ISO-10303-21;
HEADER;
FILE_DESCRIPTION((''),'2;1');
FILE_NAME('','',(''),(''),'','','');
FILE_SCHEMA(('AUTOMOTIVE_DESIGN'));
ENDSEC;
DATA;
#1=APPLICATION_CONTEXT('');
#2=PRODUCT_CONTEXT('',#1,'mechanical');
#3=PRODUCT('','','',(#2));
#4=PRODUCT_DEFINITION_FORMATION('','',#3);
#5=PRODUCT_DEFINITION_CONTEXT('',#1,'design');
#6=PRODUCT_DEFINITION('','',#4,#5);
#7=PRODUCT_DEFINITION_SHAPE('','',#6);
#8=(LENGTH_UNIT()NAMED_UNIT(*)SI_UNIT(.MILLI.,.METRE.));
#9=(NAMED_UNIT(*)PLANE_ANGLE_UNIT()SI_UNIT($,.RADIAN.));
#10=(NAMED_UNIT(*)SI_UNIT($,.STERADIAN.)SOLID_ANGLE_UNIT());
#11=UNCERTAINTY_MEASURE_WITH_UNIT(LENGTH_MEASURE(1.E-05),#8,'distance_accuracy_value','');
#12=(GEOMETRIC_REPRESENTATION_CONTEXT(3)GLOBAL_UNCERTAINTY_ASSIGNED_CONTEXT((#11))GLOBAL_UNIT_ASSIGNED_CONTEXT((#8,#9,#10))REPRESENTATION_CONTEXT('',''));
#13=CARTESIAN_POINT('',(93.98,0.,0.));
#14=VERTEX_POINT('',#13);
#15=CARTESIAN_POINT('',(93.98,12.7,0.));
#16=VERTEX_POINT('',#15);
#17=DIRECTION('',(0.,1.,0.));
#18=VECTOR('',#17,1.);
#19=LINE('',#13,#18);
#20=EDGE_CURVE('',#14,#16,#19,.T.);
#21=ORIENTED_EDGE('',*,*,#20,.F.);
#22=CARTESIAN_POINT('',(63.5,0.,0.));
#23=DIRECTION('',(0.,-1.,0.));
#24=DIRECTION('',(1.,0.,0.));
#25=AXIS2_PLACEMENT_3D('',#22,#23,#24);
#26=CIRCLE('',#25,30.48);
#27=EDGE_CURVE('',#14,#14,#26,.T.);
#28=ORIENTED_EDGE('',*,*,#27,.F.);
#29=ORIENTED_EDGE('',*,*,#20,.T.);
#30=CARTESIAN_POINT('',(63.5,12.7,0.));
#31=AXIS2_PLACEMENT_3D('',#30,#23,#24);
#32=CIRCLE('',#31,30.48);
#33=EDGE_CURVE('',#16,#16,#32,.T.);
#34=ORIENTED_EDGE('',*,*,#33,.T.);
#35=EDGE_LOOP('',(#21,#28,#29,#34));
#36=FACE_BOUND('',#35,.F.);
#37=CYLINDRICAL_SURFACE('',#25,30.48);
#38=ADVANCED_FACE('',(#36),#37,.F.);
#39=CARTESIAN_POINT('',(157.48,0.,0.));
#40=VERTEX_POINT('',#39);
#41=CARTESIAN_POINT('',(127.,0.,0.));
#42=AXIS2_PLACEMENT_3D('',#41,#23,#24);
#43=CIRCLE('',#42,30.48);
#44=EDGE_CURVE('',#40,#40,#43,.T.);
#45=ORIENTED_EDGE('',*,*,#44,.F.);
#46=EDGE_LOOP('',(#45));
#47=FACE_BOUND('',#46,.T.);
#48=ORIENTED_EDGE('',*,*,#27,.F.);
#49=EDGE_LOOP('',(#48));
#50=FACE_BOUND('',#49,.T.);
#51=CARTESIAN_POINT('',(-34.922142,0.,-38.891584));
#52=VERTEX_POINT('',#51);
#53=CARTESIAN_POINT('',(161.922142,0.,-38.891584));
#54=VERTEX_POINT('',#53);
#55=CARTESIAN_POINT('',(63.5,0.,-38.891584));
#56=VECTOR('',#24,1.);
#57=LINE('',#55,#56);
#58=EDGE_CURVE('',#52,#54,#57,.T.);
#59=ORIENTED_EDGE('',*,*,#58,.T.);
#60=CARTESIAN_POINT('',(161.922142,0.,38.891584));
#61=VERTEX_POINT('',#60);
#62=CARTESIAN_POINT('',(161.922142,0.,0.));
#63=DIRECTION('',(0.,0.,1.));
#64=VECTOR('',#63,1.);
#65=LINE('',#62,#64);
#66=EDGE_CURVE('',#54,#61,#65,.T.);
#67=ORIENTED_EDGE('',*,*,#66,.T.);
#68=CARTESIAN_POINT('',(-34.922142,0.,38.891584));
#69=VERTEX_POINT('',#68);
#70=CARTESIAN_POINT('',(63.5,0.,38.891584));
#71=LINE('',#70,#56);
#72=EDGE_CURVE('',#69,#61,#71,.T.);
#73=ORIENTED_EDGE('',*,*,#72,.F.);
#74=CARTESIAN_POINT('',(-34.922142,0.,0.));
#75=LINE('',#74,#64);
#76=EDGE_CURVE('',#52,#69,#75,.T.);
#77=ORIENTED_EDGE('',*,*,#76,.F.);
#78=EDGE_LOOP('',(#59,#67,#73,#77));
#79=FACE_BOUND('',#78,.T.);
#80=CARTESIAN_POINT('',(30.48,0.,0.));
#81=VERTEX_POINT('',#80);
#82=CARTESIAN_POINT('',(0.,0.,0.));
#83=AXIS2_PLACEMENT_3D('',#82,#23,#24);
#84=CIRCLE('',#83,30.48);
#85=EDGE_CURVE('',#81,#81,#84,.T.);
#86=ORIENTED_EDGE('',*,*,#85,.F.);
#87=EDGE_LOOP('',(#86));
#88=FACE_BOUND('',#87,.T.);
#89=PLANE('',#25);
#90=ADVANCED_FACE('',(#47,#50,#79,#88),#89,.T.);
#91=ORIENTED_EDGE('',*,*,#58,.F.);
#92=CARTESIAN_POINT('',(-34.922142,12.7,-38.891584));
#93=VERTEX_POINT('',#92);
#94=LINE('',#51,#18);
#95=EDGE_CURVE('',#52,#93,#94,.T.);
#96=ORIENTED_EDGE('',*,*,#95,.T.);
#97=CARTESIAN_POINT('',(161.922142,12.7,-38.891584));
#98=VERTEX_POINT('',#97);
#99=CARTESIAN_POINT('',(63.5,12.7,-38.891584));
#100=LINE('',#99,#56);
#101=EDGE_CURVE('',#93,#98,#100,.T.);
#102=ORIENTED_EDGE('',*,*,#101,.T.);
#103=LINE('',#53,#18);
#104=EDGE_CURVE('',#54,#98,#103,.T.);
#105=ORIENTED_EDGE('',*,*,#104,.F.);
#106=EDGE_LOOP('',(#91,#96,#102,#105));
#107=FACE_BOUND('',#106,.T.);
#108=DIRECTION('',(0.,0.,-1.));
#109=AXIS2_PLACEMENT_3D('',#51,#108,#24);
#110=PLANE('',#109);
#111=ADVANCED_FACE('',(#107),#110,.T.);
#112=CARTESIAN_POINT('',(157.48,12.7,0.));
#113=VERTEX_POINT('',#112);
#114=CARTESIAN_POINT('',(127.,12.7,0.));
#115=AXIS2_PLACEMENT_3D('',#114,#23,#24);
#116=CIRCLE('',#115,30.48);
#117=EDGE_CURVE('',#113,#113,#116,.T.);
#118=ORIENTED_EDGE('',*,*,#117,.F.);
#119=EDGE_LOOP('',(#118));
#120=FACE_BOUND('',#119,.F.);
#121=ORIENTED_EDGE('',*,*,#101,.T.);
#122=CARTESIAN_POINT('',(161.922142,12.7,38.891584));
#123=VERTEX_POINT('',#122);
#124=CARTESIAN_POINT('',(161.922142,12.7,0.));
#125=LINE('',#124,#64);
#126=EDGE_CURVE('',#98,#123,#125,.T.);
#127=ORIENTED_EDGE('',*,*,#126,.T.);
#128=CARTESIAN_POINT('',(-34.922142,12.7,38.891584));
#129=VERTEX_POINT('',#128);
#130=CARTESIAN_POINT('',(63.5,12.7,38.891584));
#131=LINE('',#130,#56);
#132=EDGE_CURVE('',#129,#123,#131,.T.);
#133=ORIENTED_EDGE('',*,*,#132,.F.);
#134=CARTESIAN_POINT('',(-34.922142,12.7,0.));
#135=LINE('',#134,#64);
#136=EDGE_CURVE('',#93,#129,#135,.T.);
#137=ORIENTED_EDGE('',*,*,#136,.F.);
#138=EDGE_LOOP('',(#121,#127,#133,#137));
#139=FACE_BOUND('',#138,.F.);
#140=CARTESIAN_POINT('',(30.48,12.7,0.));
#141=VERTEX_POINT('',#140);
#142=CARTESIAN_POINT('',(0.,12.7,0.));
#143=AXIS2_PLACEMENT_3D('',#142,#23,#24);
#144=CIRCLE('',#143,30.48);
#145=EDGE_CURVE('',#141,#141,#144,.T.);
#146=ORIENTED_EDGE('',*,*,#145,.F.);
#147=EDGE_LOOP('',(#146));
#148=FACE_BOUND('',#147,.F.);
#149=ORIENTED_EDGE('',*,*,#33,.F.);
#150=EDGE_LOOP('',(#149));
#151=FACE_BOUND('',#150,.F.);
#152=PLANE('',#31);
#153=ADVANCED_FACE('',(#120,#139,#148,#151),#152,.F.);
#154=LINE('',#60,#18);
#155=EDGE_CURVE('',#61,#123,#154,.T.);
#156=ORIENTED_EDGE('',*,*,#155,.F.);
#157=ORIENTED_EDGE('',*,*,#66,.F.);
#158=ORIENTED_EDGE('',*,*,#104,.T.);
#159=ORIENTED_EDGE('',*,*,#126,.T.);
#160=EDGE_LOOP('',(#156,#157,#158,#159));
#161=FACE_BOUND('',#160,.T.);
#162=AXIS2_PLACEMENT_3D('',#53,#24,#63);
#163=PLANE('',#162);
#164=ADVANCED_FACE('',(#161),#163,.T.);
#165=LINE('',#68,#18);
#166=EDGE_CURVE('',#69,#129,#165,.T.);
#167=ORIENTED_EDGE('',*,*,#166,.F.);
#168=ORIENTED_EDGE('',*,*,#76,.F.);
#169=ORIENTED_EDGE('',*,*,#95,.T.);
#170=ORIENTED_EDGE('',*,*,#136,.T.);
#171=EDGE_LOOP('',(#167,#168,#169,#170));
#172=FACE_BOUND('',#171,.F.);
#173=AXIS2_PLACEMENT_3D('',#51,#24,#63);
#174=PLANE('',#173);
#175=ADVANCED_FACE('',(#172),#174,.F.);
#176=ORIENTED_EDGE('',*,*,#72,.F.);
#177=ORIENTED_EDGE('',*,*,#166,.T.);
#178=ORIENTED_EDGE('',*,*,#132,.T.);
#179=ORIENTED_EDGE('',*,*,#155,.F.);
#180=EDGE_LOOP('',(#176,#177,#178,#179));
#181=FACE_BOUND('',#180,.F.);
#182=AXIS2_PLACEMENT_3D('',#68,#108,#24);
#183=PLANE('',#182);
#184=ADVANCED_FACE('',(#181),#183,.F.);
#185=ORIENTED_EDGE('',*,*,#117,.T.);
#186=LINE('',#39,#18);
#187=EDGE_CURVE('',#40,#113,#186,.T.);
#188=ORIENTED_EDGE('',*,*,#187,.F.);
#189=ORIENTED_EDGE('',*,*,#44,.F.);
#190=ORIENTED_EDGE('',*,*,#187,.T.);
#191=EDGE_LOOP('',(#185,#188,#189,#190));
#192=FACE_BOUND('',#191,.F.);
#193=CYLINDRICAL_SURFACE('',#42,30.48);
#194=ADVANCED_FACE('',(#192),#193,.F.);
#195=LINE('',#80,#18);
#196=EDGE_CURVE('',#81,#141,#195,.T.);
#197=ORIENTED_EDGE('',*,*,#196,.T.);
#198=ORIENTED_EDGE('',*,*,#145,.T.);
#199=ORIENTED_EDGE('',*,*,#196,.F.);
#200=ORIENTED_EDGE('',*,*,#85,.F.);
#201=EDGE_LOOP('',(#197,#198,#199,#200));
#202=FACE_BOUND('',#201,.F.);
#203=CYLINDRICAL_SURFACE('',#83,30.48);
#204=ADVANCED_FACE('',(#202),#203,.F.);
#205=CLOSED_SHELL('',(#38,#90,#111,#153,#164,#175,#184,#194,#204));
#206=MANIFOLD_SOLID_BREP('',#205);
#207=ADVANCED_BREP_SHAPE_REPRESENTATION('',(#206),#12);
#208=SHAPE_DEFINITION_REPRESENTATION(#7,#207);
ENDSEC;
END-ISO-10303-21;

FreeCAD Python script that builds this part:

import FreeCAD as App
import Part
import Sketcher

V = App.Vector
Q = App.Units.Quantity


def add_polygon(sketch, points):
    """Adds a closed chain of lines whose ends are joined by coincident constraints."""
    first, n = sketch.GeometryCount, len(points)
    for a, b in zip(points, points[1:] + points[:1]):
        sketch.addGeometry(Part.LineSegment(App.Vector(*a, 0), App.Vector(*b, 0)), False)
    for i in range(n):
        sketch.addConstraint(Sketcher.Constraint("Coincident", first + i, 2, first + (i + 1) % n, 1))

doc = App.newDocument("Part")
params = doc.addObject("Spreadsheet::Sheet", "Params")
for row, (alias, value) in enumerate([
    ("sketch1_diameter", "2.4 in"),
    ("pad1_length", "0.5 in"),
], start=1):
    params.set(f"A{row}", alias)
    params.set(f"B{row}", "=" + value)
    params.setAlias(f"B{row}", alias)

body = doc.addObject("PartDesign::Body", "Body")

# Sketch on XZ plane
sketch1 = doc.addObject("Sketcher::SketchObject", "Sketch")
body.addObject(sketch1)
sketch1.AttachmentSupport = (doc.XZ_Plane, [""])
sketch1.MapMode = "FlatFace"
add_polygon(sketch1, [(-35, 39), (-35, -39), (162, -39), (162, 39)])  # lines 0-3
sketch1.addGeometry(Part.Circle(V(0, 0, 0), V(0, 0, 1), 30), False)  # 4
sketch1.addGeometry(Part.Circle(V(64, 0, 0), V(0, 0, 1), 30), False)  # 5
sketch1.addGeometry(Part.Circle(V(127, 0, 0), V(0, 0, 1), 30), False)  # 6
sketch1.addConstraint([
    Sketcher.Constraint("Vertical", 0),
    Sketcher.Constraint("Horizontal", 1),
    Sketcher.Constraint("Vertical", 2),
    Sketcher.Constraint("Horizontal", 3),
    Sketcher.Constraint("Coincident", 4, 3, -1, 1),
    Sketcher.Constraint("Equal", 4, 5),
    Sketcher.Constraint("Equal", 5, 6),
    Sketcher.Constraint("PointOnObject", 5, 3, -1),
    Sketcher.Constraint("PointOnObject", 6, 3, -1),
    Sketcher.Constraint("Diameter", 4, Q("2.4 in")),
    Sketcher.Constraint("DistanceX", -1, 1, 6, 3, Q("5 in")),
    Sketcher.Constraint("DistanceX", -1, 1, 5, 3, Q("2.5 in")),
    Sketcher.Constraint("DistanceY", 0, 2, 0, 1, 77.783168),
    Sketcher.Constraint("DistanceX", 1, 1, 1, 2, 196.844284),
    Sketcher.Constraint("DistanceX", -1, 1, 1, 2, 161.922142),
    Sketcher.Constraint("DistanceY", 0, 2, -1, 1, 38.891584),
])
sketch1.setExpression("Constraints[13]", "Params.sketch1_diameter")
pad1 = doc.addObject("PartDesign::Pad", "Pad")
body.addObject(pad1)
pad1.Profile = sketch1
pad1.setExpression("Length", "Params.pad1_length")
pad1.Reversed = True

doc.recompute()
